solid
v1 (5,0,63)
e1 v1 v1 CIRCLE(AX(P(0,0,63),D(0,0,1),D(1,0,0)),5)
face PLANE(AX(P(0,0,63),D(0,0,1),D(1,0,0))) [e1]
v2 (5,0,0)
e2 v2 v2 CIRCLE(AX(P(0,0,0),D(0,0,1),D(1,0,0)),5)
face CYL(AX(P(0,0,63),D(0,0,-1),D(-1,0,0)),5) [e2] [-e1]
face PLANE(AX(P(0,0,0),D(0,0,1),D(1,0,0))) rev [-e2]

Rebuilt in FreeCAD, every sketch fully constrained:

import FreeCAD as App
import Part
import Sketcher
Q = App.Units.Quantity

doc = App.newDocument("Part")
params = doc.addObject("Spreadsheet::Sheet", "Params")
for row, (alias, value) in enumerate([
    ("sketch1_diameter", "10 mm"),
    ("pad1_length", "63 mm"),
], start=1):
    params.set(f"A{row}", alias)
    params.set(f"B{row}", "=" + value)
    params.setAlias(f"B{row}", alias)

body = doc.addObject("PartDesign::Body", "Body")

sketch1 = body.newObject("Sketcher::SketchObject", "Sketch")
sketch1.AttachmentSupport = (doc.getObject("XY_Plane"), [""])
sketch1.MapMode = "FlatFace"
sketch1.addGeometry(Part.Circle(App.Vector(0, 0, 0), App.Vector(0, 0, 1), 5), False)
sketch1.addConstraint([
    Sketcher.Constraint("Coincident", 0, 3, -1, 1),
    Sketcher.Constraint("Diameter", 0, Q("10 mm")),
])
sketch1.setExpression("Constraints[1]", "Params.sketch1_diameter")
pad1 = body.newObject("PartDesign::Pad", "Pad")
pad1.Profile = sketch1
pad1.setExpression("Length", "Params.pad1_length")

doc.recompute()
